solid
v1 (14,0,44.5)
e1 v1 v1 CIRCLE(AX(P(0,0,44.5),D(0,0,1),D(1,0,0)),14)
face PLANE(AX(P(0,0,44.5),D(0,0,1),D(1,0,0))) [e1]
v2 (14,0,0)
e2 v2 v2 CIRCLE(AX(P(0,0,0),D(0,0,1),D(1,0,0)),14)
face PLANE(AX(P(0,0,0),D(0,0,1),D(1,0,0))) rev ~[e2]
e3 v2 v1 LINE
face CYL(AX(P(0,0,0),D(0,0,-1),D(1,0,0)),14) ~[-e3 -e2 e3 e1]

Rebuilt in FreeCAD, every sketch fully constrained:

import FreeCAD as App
import Part
import Sketcher
from FreeCAD import Vector
Q = App.Units.Quantity

doc = App.newDocument("Part")
body = doc.addObject("PartDesign::Body", "Body")

sketch1 = body.newObject("Sketcher::SketchObject", "Sketch")
sketch1.AttachmentSupport = (doc.getObject("XY_Plane"), [""])
sketch1.MapMode = "FlatFace"
sketch1.addGeometry(Part.Circle(Vector(0, 0, 0), Vector(0, 0, 1), 14), False)
sketch1.addConstraint([
    Sketcher.Constraint("Coincident", 0, 3, -1, 1),
    Sketcher.Constraint("Diameter", 0, Q("28 mm")),
])
pad1 = body.newObject("PartDesign::Pad", "Pad")
pad1.Profile = sketch1
pad1.Length = 44.5

doc.recompute()
